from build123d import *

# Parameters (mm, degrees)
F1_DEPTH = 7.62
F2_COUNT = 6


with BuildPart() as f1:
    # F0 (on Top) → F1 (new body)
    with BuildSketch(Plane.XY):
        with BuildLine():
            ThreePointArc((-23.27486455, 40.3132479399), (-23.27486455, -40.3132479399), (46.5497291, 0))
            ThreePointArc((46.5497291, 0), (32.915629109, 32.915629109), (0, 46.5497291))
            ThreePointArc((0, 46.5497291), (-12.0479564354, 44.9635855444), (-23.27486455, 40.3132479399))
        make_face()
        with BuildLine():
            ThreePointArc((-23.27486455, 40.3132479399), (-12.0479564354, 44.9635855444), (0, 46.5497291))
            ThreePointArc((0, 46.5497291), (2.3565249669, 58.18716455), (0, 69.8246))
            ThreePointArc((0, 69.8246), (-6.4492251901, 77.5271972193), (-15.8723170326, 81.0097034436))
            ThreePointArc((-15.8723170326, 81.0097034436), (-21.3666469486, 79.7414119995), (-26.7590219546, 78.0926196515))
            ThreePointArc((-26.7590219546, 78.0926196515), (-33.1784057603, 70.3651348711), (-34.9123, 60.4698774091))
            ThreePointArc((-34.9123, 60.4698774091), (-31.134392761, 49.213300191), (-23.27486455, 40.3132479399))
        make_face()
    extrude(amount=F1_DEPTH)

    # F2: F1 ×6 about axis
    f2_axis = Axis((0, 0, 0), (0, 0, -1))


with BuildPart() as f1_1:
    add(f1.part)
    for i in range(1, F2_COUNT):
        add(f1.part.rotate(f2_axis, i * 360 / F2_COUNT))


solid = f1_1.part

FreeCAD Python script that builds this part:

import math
import FreeCAD as App
import Part
import Sketcher
Q = App.Units.Quantity

doc = App.newDocument("Part")
params = doc.addObject("Spreadsheet::Sheet", "Params")
for row, (alias, value) in enumerate([
    ("pad1_length", "0.3 in"),
], start=1):
    params.set(f"A{row}", alias)
    params.set(f"B{row}", "=" + value)
    params.setAlias(f"B{row}", alias)

body = doc.addObject("PartDesign::Body", "Body")

# Sketch on XY plane
sketch1 = body.newObject("Sketcher::SketchObject", "Sketch")
sketch1.AttachmentSupport = (doc.getObject("XY_Plane"), [""])
sketch1.MapMode = "FlatFace"
sketch1.addGeometry([
    Part.ArcOfCircle(Part.Circle(App.Vector(0, 0, 0), App.Vector(0, 0, 1), 46.549729), math.radians(120), math.radians(450)),  # 0
    Part.ArcOfCircle(Part.Circle(App.Vector(-27.556825, 58.187165, 0), App.Vector(0, 0, 1), 29.91335), math.radians(-22.894666), math.radians(22.894666)),  # 1
    Part.ArcOfCircle(Part.Circle(App.Vector(-17.709853, 61.547707, 0), App.Vector(0, 0, 1), 19.548551), math.radians(25.049549), math.radians(84.606316)),  # 2
    Part.ArcOfCircle(Part.Circle(App.Vector(-0.475616, 1.775024, 0), App.Vector(0, 0, 1), 80.716745), math.radians(100.996543), math.radians(109.003457)),  # 3
    Part.ArcOfCircle(Part.Circle(App.Vector(-15.436671, 62.156804, 0), App.Vector(0, 0, 1), 19.548551), math.radians(125.393684), math.radians(184.950451)),  # 4
    Part.ArcOfCircle(Part.Circle(App.Vector(-5.228671, 64.169975, 0), App.Vector(0, 0, 1), 29.91335), math.radians(-172.894666), math.radians(-127.105334)),  # 5
], False)
sketch1.addConstraint([
    Sketcher.Constraint("Coincident", 0, 2, 1, 1),
    Sketcher.Constraint("Coincident", 1, 2, 2, 1),
    Sketcher.Constraint("Coincident", 2, 2, 3, 1),
    Sketcher.Constraint("Coincident", 3, 2, 4, 1),
    Sketcher.Constraint("Coincident", 4, 2, 5, 1),
    Sketcher.Constraint("Coincident", 5, 2, 0, 1),
    Sketcher.Constraint("Coincident", 0, 3, -1, 1),
    Sketcher.Constraint("Equal", 2, 4),
    Sketcher.Constraint("Equal", 1, 5),
    Sketcher.Constraint("PointOnObject", 0, 2, -2),
    Sketcher.Constraint("PointOnObject", 1, 2, -2),
    Sketcher.Constraint("DistanceY", -1, 1, 1, 2, Q("2.749 in")),
    Sketcher.Constraint("Radius", 0, 46.549729),
    Sketcher.Constraint("Radius", 1, 29.91335),
    Sketcher.Constraint("Radius", 2, 19.548551),
    Sketcher.Constraint("DistanceX", 4, 2, -1, 1, Q("1.3745 in")),
    Sketcher.Constraint("Radius", 3, 80.716745),
    Sketcher.Constraint("DistanceX", 4, 3, 5, 3, 10.207999),
    Sketcher.Constraint("DistanceY", 4, 3, 2, 2, 18.852899),
    Sketcher.Constraint("DistanceX", 4, 3, -1, 1, 15.436671),
    Sketcher.Constraint("DistanceX", 3, 2, -1, 1, 26.759022),
    Sketcher.Constraint("DistanceY", -1, 1, 3, 2, 78.09262),
    Sketcher.Constraint("DistanceX", 1, 3, 3, 3, 27.081209),
])
pad1 = body.newObject("PartDesign::Pad", "Pad")
pad1.Profile = sketch1
pad1.setExpression("Length", "Params.pad1_length")
body2 = doc.addObject("PartDesign::Body", "Body001")
doc.recompute()

body2.BaseFeature = body
doc.recompute()

body3 = doc.addObject("PartDesign::Body", "Body002")
body3.BaseFeature = body
body3.Placement = App.Placement(App.Vector(0, 0, 0), App.Rotation(App.Vector(0, 0, -1), 60))
boolean = body2.newObject("PartDesign::Boolean", "Boolean")
boolean.Type = "Fuse"
boolean.addObjects([body3])
doc.recompute()

body4 = doc.addObject("PartDesign::Body", "Body003")
body4.BaseFeature = body
body4.Placement = App.Placement(App.Vector(0, 0, 0), App.Rotation(App.Vector(0, 0, -1), 120))
boolean2 = body2.newObject("PartDesign::Boolean", "Boolean001")
boolean2.Type = "Fuse"
boolean2.addObjects([body4])
doc.recompute()

body5 = doc.addObject("PartDesign::Body", "Body004")
body5.BaseFeature = body
body5.Placement = App.Placement(App.Vector(0, 0, 0), App.Rotation(App.Vector(0, 0, -1), 180))
boolean3 = body2.newObject("PartDesign::Boolean", "Boolean002")
boolean3.Type = "Fuse"
boolean3.addObjects([body5])
doc.recompute()

body6 = doc.addObject("PartDesign::Body", "Body005")
body6.BaseFeature = body
body6.Placement = App.Placement(App.Vector(0, 0, 0), App.Rotation(App.Vector(0, 0, -1), 240))
boolean4 = body2.newObject("PartDesign::Boolean", "Boolean003")
boolean4.Type = "Fuse"
boolean4.addObjects([body6])
doc.recompute()

body.Placement = App.Placement(App.Vector(0, 0, 0), App.Rotation(App.Vector(0, 0, -1), 300))
boolean5 = body2.newObject("PartDesign::Boolean", "Boolean004")
boolean5.Type = "Fuse"
boolean5.addObjects([body])

doc.recompute()
